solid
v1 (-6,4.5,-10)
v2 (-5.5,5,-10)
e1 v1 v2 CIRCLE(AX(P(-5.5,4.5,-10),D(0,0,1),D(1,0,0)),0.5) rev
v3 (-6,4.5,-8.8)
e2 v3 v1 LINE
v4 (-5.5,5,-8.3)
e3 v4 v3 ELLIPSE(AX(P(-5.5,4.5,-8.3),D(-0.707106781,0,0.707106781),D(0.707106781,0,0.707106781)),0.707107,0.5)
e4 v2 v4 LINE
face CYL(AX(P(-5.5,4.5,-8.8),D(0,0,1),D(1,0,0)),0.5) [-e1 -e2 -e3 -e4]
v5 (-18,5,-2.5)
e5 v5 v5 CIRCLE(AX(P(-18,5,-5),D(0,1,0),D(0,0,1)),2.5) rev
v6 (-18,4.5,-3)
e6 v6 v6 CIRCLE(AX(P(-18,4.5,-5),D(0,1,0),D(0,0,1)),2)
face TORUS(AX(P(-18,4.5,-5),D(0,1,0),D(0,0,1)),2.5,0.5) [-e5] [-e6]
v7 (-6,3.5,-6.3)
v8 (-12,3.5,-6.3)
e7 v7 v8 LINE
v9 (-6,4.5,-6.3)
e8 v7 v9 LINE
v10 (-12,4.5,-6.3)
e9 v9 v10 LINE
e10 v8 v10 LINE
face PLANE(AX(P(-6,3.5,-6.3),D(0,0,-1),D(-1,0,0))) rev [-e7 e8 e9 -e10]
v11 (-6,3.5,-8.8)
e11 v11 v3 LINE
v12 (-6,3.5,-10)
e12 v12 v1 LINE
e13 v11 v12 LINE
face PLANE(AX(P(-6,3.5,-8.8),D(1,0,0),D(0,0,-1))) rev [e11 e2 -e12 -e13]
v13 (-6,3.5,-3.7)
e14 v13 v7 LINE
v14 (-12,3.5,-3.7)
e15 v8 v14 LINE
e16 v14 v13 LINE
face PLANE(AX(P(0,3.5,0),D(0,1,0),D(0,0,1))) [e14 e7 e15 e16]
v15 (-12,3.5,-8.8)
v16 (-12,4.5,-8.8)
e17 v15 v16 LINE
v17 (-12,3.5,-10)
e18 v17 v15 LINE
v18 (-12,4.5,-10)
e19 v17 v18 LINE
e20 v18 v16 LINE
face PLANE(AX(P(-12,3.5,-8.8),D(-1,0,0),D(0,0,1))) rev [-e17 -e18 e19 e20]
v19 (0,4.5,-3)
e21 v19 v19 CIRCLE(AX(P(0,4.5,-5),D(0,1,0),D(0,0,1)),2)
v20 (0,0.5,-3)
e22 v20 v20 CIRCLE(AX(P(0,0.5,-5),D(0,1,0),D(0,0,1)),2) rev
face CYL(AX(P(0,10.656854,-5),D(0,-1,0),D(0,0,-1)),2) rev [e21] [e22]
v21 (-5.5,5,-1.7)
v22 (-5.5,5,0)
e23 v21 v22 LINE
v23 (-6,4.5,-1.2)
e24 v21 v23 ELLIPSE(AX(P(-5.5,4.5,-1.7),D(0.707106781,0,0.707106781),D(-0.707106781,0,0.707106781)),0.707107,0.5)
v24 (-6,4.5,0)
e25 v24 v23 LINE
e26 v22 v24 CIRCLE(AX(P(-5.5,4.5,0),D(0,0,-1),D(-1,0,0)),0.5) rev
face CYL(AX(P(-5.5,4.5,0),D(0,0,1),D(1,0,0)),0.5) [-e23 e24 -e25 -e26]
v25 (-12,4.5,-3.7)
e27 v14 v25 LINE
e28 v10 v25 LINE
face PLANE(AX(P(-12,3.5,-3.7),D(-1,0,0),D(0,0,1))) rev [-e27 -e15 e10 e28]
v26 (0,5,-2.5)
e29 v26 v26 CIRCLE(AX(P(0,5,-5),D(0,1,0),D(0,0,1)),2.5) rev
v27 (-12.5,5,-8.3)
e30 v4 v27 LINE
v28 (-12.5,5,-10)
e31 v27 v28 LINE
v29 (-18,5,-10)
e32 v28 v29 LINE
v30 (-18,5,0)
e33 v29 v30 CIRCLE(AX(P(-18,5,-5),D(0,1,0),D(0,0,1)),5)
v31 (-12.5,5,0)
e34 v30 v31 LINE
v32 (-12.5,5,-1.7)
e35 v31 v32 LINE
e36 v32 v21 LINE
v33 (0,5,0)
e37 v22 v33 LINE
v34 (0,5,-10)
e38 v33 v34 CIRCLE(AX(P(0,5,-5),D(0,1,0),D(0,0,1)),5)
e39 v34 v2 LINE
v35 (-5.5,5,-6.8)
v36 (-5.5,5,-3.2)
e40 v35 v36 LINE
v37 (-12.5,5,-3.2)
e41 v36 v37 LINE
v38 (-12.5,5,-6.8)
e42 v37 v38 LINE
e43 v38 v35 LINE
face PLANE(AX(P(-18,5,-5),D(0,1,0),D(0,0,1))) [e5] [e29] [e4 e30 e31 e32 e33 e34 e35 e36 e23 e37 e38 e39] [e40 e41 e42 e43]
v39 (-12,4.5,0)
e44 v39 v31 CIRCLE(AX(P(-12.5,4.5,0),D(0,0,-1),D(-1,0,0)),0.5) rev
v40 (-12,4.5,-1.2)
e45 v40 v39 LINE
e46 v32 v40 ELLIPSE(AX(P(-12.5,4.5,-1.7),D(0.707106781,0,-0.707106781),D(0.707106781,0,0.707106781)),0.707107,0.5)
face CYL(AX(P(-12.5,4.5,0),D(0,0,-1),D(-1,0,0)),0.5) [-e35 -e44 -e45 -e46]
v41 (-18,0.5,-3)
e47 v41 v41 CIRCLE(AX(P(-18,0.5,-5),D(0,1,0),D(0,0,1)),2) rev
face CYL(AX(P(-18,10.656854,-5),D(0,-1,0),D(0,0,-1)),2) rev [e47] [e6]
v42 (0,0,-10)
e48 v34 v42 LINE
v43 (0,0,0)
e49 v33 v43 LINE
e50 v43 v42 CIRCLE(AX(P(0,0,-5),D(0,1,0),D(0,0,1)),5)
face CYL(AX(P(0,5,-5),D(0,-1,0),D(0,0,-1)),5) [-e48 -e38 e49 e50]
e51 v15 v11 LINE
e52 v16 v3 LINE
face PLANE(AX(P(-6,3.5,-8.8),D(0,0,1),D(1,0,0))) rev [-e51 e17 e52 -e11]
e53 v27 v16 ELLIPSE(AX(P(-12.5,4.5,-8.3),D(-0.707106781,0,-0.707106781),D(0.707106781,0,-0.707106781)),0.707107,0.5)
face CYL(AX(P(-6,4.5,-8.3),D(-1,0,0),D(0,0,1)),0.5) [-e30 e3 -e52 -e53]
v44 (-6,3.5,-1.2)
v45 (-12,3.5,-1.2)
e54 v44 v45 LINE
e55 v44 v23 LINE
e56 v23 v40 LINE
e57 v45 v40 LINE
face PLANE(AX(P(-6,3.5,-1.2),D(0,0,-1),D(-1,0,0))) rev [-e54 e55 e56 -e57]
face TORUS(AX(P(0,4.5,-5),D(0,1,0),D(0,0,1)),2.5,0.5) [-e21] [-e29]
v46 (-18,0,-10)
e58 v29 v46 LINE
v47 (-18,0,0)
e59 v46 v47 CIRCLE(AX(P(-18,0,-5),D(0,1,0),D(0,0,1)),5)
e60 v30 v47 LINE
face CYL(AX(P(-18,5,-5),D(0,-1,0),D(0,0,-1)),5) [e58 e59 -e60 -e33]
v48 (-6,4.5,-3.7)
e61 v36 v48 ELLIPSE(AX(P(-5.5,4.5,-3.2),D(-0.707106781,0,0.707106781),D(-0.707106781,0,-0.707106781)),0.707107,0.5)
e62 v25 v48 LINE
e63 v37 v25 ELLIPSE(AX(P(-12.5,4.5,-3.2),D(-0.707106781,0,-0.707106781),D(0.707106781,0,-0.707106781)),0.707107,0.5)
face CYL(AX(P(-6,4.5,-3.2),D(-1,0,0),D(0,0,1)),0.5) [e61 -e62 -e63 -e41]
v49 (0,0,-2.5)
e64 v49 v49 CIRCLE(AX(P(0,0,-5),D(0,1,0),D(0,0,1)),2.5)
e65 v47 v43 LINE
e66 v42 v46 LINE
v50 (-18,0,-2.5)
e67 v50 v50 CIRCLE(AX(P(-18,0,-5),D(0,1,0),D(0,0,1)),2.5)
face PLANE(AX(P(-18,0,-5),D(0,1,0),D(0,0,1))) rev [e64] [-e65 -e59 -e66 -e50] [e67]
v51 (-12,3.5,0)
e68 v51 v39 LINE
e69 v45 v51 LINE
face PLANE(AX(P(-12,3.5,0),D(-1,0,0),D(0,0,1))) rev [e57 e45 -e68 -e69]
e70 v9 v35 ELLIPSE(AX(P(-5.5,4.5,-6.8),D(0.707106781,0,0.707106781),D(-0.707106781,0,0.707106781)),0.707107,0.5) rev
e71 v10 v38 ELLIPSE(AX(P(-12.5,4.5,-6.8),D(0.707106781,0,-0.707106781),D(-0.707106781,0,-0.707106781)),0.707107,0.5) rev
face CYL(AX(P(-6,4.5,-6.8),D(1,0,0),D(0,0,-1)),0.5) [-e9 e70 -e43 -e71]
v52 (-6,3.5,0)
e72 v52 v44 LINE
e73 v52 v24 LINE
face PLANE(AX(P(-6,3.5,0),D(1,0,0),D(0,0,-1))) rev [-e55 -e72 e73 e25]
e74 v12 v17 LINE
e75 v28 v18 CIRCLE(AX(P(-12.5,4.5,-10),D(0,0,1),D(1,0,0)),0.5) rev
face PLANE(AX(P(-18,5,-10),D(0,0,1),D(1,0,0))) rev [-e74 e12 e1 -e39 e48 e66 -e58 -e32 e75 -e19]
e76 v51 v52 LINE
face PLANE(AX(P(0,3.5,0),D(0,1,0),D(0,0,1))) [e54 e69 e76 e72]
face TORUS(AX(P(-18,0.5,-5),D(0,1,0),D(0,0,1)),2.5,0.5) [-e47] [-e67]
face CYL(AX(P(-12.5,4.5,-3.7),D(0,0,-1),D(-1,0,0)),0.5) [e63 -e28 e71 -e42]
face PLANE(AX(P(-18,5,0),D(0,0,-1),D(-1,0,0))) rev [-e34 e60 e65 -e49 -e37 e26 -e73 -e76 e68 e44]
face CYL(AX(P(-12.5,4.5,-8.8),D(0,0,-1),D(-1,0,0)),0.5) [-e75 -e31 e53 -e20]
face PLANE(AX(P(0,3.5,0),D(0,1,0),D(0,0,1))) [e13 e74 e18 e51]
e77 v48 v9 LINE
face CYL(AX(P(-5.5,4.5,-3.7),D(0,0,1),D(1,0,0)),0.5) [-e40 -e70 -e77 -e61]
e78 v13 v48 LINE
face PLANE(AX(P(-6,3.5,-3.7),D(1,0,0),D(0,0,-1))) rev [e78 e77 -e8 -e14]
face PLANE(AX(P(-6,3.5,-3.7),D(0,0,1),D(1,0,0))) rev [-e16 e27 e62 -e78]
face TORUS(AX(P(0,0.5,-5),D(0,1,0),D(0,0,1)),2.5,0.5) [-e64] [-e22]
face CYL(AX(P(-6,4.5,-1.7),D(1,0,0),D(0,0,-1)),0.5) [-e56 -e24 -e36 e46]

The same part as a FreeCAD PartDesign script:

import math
import FreeCAD as App
import Part
import Sketcher
Q = App.Units.Quantity


def edges_at(feature, points):
    """Names of the edges that pass closest to the given points."""
    edges = feature.Shape.Edges
    near = lambda p: min(range(len(edges)), key=lambda i: edges[i].distToShape(Part.Vertex(*p))[0])
    return sorted({f"Edge{near(p) + 1}" for p in points})

doc = App.newDocument("Part")
body = doc.addObject("PartDesign::Body", "Body")

sketch1 = body.newObject("Sketcher::SketchObject", "Sketch")
sketch1.AttachmentSupport = (doc.getObject("XZ_Plane"), [""])
sketch1.MapMode = "FlatFace"
sketch1.addGeometry([
    Part.LineSegment(App.Vector(0, -10, 0), App.Vector(-18, -10, 0)),
    Part.ArcOfCircle(Part.Circle(App.Vector(-18, -5, 0), App.Vector(0, 0, 1), 5), math.radians(90), math.radians(270)),
    Part.LineSegment(App.Vector(-18, 0, 0), App.Vector(0, 0, 0)),
    Part.ArcOfCircle(Part.Circle(App.Vector(0, -5, 0), App.Vector(0, 0, 1), 5), math.radians(-90), math.radians(90)),
], False)
sketch1.addConstraint([
    Sketcher.Constraint("Tangent", 0, 2, 1, 2),
    Sketcher.Constraint("Tangent", 1, 1, 2, 1),
    Sketcher.Constraint("Tangent", 2, 2, 3, 2),
    Sketcher.Constraint("Tangent", 3, 1, 0, 1),
    Sketcher.Constraint("Horizontal", 0),
    Sketcher.Constraint("Horizontal", 2),
    Sketcher.Constraint("Coincident", 2, 2, -1, 1),
    Sketcher.Constraint("Radius", 1, Q("5 mm")),
    Sketcher.Constraint("DistanceX", 0, 2, 0, 1, Q("18 mm")),
])
pad1 = body.newObject("PartDesign::Pad", "Pad")
pad1.Profile = sketch1
pad1.Length = 5
pad1.Reversed = True

sketch2 = body.newObject("Sketcher::SketchObject", "Sketch001")
sketch2.AttachmentSupport = (doc.getObject("XZ_Plane"), [""])
sketch2.MapMode = "FlatFace"
sketch2.addGeometry([
    Part.Circle(App.Vector(-18, -5, 0), App.Vector(0, 0, 1), 2),
    Part.Circle(App.Vector(0, -5, 0), App.Vector(0, 0, 1), 2),
], False)
sketch2.addConstraint([
    Sketcher.Constraint("Equal", 0, 1),
    Sketcher.Constraint("PointOnObject", 1, 3, -2),
    Sketcher.Constraint("Horizontal", 0, 3, 1, 3),
    Sketcher.Constraint("Diameter", 0, Q("4 mm")),
    Sketcher.Constraint("DistanceX", 0, 3, -1, 1, Q("18 mm")),
    Sketcher.Constraint("DistanceY", 0, 3, -1, 1, Q("5 mm")),
])
pocket1 = body.newObject("PartDesign::Pocket", "Pocket")
pocket1.Profile = sketch2
pocket1.Length = 5
doc.recompute()

fillet = body.newObject("PartDesign::Fillet", "Fillet")
fillet.Base = (pocket1, edges_at(pocket1, [
    (-18, 0, -3),
    (-18, 5, -3),
    (0, 0, -3),
    (0, 5, -3),
]))
fillet.Radius = 0.5

sketch3 = body.newObject("Sketcher::SketchObject", "Sketch002")
sketch3.AttachmentSupport = (doc.getObject("XZ_Plane"), [""])
sketch3.MapMode = "FlatFace"
sketch3.AttachmentOffset = App.Placement(App.Vector(0, 0, -5), App.Rotation())
sketch3.addGeometry([
    Part.LineSegment(App.Vector(-12, -1.2, 0), App.Vector(-12, 0, 0)),
    Part.LineSegment(App.Vector(-12, 0, 0), App.Vector(-6, 0, 0)),
    Part.LineSegment(App.Vector(-6, 0, 0), App.Vector(-6, -1.2, 0)),
    Part.LineSegment(App.Vector(-6, -1.2, 0), App.Vector(-12, -1.2, 0)),
    Part.LineSegment(App.Vector(-12, -6.3, 0), App.Vector(-12, -3.7, 0)),
    Part.LineSegment(App.Vector(-12, -3.7, 0), App.Vector(-6, -3.7, 0)),
    Part.LineSegment(App.Vector(-6, -3.7, 0), App.Vector(-6, -6.3, 0)),
    Part.LineSegment(App.Vector(-6, -6.3, 0), App.Vector(-12, -6.3, 0)),
    Part.LineSegment(App.Vector(-12, -10, 0), App.Vector(-12, -8.8, 0)),
    Part.LineSegment(App.Vector(-12, -8.8, 0), App.Vector(-6, -8.8, 0)),
    Part.LineSegment(App.Vector(-6, -8.8, 0), App.Vector(-6, -10, 0)),
    Part.LineSegment(App.Vector(-6, -10, 0), App.Vector(-12, -10, 0)),
], False)
sketch3.addConstraint([
    Sketcher.Constraint("Coincident", 0, 2, 1, 1),
    Sketcher.Constraint("Coincident", 1, 2, 2, 1),
    Sketcher.Constraint("Coincident", 2, 2, 3, 1),
    Sketcher.Constraint("Coincident", 3, 2, 0, 1),
    Sketcher.Constraint("Coincident", 4, 2, 5, 1),
    Sketcher.Constraint("Coincident", 5, 2, 6, 1),
    Sketcher.Constraint("Coincident", 6, 2, 7, 1),
    Sketcher.Constraint("Coincident", 7, 2, 4, 1),
    Sketcher.Constraint("Coincident", 8, 2, 9, 1),
    Sketcher.Constraint("Coincident", 9, 2, 10, 1),
    Sketcher.Constraint("Coincident", 10, 2, 11, 1),
    Sketcher.Constraint("Coincident", 11, 2, 8, 1),
    Sketcher.Constraint("Vertical", 0),
    Sketcher.Constraint("Horizontal", 1),
    Sketcher.Constraint("Vertical", 2),
    Sketcher.Constraint("Horizontal", 3),
    Sketcher.Constraint("Vertical", 4),
    Sketcher.Constraint("Horizontal", 5),
    Sketcher.Constraint("Vertical", 6),
    Sketcher.Constraint("Horizontal", 7),
    Sketcher.Constraint("Vertical", 8),
    Sketcher.Constraint("Horizontal", 9),
    Sketcher.Constraint("Vertical", 10),
    Sketcher.Constraint("Horizontal", 11),
    Sketcher.Constraint("PointOnObject", 0, 2, -1),
    Sketcher.Constraint("Vertical", 3, 2, 4, 2),
    Sketcher.Constraint("Vertical", 2, 2, 5, 2),
    Sketcher.Constraint("Vertical", 7, 2, 8, 2),
    Sketcher.Constraint("Vertical", 6, 2, 9, 2),
    Sketcher.Constraint("Equal", 2, 8),
    Sketcher.Constraint("DistanceX", 1, 1, 1, 2, Q("6 mm")),
    Sketcher.Constraint("DistanceY", 0, 1, 0, 2, Q("1.2 mm")),
    Sketcher.Constraint("DistanceY", 4, 1, 4, 2, Q("2.6 mm")),
    Sketcher.Constraint("DistanceX", 0, 2, -1, 1, Q("12 mm")),
    Sketcher.Constraint("DistanceY", 10, 2, -1, 1, Q("10 mm")),
    Sketcher.Constraint("DistanceY", 4, 2, -1, 1, Q("3.7 mm")),
])
pocket2 = body.newObject("PartDesign::Pocket", "Pocket001")
pocket2.Profile = sketch3
pocket2.Length = 1.5
pocket2.Reversed = True
doc.recompute()

fillet2 = body.newObject("PartDesign::Fillet", "Fillet001")
fillet2.Base = (pocket2, edges_at(pocket2, [
    (-12, 5, -0.6),
    (-6, 5, -0.6),
    (-9, 5, -1.2),
    (-12, 5, -9.4),
    (-9, 5, -8.8),
    (-6, 5, -9.4),
    (-12, 5, -5),
    (-9, 5, -3.7),
    (-6, 5, -5),
    (-9, 5, -6.3),
]))
fillet2.Radius = 0.5

doc.recompute()
